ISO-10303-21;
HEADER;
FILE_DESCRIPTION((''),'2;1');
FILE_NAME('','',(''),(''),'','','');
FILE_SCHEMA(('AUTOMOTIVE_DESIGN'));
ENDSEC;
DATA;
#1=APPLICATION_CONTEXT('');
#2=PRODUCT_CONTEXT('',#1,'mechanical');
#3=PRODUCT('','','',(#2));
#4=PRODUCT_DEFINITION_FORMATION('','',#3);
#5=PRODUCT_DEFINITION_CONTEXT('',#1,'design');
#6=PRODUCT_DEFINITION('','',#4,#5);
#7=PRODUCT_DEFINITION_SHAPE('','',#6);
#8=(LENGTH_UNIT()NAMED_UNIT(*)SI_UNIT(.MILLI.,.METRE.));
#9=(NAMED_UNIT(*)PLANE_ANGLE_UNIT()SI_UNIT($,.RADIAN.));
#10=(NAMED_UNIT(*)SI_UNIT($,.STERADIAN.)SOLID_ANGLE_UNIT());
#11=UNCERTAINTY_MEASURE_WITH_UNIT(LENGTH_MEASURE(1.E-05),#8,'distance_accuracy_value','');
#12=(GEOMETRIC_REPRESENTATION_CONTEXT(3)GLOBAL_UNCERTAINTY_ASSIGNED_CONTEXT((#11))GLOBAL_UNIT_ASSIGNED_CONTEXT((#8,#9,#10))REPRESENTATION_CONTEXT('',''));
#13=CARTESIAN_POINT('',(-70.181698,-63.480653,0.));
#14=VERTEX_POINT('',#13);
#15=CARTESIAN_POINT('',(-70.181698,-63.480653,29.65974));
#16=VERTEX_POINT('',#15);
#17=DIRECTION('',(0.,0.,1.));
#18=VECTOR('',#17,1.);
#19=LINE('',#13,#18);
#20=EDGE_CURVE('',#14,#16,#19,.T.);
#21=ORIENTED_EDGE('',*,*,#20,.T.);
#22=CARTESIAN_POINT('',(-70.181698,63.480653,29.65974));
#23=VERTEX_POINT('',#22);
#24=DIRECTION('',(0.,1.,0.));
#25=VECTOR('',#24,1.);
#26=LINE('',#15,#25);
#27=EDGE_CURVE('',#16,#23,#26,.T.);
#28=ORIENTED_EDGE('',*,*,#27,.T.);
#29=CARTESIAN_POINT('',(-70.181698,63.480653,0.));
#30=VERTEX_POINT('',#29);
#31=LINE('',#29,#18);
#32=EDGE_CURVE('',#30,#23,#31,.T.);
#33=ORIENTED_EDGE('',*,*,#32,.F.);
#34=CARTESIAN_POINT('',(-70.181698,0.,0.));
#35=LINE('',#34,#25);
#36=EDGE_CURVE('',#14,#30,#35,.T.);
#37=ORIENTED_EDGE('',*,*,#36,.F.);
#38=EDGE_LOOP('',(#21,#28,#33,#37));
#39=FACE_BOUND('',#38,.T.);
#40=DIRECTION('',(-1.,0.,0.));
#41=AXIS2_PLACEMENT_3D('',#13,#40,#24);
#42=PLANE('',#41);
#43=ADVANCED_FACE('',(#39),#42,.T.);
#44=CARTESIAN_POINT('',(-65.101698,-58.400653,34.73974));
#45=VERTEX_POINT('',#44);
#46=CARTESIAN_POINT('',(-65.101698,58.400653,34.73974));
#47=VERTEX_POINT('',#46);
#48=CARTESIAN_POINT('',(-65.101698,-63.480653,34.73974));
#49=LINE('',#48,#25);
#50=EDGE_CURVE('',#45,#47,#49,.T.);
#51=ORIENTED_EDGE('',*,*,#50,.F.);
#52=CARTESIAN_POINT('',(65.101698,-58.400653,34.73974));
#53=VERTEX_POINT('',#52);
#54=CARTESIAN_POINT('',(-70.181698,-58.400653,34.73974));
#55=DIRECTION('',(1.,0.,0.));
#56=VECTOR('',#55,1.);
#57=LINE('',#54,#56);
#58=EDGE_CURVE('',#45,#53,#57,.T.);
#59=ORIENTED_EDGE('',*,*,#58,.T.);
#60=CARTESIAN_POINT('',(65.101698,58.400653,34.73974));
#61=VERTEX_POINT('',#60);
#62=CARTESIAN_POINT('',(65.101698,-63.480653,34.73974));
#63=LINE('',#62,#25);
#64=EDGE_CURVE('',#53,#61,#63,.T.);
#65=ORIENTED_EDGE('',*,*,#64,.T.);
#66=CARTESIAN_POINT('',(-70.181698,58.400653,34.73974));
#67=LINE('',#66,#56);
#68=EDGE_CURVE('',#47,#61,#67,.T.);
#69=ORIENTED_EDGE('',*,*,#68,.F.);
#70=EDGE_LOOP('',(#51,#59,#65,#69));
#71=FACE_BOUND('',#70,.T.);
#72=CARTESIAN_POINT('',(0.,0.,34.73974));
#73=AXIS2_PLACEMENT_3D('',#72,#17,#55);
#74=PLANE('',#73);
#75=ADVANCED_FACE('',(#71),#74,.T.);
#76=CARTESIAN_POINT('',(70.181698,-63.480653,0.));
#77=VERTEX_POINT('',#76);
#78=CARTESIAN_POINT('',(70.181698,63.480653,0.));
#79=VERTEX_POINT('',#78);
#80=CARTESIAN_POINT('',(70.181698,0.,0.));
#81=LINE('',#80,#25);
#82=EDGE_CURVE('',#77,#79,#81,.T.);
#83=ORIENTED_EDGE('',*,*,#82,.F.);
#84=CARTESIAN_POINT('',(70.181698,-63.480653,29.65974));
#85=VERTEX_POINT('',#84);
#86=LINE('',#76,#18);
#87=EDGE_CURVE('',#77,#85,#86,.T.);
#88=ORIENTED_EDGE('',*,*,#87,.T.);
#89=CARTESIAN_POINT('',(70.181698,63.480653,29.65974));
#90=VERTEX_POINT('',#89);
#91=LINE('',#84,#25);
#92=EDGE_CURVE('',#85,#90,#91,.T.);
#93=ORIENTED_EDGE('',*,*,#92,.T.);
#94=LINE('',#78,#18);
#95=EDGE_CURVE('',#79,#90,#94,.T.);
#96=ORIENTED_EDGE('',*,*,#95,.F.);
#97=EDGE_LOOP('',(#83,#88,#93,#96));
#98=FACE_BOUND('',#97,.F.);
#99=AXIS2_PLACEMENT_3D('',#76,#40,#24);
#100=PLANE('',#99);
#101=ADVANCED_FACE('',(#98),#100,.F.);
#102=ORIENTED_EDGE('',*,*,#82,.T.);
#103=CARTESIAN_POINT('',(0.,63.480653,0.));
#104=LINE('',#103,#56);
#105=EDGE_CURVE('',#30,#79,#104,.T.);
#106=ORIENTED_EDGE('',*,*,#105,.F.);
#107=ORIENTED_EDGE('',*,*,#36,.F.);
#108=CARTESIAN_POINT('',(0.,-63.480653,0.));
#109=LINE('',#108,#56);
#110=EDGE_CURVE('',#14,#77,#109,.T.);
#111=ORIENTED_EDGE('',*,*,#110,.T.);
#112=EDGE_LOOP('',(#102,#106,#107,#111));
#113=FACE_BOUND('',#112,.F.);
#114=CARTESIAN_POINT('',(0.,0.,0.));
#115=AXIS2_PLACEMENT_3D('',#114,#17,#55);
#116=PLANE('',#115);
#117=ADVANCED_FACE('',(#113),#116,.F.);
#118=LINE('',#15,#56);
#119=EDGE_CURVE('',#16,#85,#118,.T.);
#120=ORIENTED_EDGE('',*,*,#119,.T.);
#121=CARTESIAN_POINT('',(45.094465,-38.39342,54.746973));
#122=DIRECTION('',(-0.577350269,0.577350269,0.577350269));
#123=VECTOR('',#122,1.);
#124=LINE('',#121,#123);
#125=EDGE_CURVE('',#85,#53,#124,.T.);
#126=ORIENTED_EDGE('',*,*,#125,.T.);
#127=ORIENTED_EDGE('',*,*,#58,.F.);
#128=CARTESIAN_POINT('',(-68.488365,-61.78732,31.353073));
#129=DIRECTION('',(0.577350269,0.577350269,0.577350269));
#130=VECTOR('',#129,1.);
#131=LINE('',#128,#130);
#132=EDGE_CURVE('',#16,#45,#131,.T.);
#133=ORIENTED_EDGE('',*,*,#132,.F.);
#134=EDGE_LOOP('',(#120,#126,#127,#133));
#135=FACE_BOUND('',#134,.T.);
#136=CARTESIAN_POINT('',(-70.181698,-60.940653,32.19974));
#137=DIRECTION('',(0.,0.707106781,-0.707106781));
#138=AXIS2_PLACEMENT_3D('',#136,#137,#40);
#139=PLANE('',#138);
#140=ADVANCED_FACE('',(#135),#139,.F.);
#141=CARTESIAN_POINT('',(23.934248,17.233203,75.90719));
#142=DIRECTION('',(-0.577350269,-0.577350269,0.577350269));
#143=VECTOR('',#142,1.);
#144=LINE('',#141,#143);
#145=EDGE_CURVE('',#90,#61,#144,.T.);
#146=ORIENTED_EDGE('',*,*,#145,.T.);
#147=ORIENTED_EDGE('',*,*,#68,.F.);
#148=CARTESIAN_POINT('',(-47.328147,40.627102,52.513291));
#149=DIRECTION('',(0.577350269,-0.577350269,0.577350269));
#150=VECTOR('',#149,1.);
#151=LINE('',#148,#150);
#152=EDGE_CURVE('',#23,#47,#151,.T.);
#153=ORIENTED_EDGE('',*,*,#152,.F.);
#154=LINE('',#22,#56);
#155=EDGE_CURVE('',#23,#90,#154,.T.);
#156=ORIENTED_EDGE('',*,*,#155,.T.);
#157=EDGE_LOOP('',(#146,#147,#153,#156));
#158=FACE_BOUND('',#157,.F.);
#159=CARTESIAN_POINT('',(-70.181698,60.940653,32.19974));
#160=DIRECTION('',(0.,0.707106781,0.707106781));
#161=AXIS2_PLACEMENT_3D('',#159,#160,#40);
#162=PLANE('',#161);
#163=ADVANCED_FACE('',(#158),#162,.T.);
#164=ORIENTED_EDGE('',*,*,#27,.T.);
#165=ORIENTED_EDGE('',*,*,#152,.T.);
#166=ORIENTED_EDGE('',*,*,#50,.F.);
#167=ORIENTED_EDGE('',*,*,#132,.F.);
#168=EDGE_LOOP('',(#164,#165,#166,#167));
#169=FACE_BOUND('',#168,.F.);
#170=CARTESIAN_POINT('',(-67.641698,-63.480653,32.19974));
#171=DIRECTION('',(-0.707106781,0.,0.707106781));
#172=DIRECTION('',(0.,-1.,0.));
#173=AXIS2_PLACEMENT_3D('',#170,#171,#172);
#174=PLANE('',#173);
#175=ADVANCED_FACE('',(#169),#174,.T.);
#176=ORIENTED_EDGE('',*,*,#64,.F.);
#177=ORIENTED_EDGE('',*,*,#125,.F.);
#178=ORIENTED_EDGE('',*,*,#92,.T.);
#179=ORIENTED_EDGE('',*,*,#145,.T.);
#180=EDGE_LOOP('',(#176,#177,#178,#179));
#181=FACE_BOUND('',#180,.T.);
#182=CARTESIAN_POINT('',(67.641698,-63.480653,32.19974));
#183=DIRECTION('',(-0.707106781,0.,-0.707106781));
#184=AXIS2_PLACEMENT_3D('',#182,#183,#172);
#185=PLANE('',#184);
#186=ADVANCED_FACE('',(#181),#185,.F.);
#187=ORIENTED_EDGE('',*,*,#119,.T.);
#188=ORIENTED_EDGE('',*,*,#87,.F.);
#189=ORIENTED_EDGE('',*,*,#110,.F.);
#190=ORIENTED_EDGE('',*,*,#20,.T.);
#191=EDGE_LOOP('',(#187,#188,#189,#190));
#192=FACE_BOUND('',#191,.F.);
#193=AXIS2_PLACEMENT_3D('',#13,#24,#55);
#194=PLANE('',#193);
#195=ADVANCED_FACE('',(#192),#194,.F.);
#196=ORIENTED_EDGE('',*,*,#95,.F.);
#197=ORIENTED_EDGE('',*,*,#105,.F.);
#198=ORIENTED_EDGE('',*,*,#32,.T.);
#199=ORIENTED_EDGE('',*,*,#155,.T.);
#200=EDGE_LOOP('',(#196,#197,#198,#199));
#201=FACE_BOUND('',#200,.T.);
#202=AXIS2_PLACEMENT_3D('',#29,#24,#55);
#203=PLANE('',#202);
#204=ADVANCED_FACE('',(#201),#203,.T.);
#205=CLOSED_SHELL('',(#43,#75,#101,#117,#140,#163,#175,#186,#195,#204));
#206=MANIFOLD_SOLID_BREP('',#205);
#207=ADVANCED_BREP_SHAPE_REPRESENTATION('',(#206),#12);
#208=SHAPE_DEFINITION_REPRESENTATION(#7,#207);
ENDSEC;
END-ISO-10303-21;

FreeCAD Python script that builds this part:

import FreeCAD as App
import Part
import Sketcher
from FreeCAD import Vector
Q = App.Units.Quantity


def edges_at(feature, points):
    """Names of the edges that pass closest to the given points."""
    edges = feature.Shape.Edges
    near = lambda p: min(range(len(edges)), key=lambda i: edges[i].distToShape(Part.Vertex(*p))[0])
    return sorted({f"Edge{near(p) + 1}" for p in points})

doc = App.newDocument("Part")
params = doc.addObject("Spreadsheet::Sheet", "Params")
for row, (alias, value) in enumerate([
    ("pad1_length", "34.73974 mm"),
    ("chamfer_size", "0.2 in"),
], start=1):
    params.set(f"A{row}", alias)
    params.set(f"B{row}", "=" + value)
    params.setAlias(f"B{row}", alias)

body = doc.addObject("PartDesign::Body", "Body")

sketch1 = body.newObject("Sketcher::SketchObject", "Sketch")
sketch1.AttachmentSupport = (doc.getObject("XY_Plane"), [""])
sketch1.MapMode = "FlatFace"
sketch1.addGeometry([
    Part.LineSegment(Vector(-70, 63, 0), Vector(-70, -63, 0)),
    Part.LineSegment(Vector(-70, -63, 0), Vector(70, -63, 0)),
    Part.LineSegment(Vector(70, -63, 0), Vector(70, 63, 0)),
    Part.LineSegment(Vector(70, 63, 0), Vector(-70, 63, 0)),
], False)
sketch1.addConstraint([
    Sketcher.Constraint("Coincident", 0, 2, 1, 1),
    Sketcher.Constraint("Coincident", 1, 2, 2, 1),
    Sketcher.Constraint("Coincident", 2, 2, 3, 1),
    Sketcher.Constraint("Coincident", 3, 2, 0, 1),
    Sketcher.Constraint("Vertical", 0),
    Sketcher.Constraint("Horizontal", 1),
    Sketcher.Constraint("Vertical", 2),
    Sketcher.Constraint("Horizontal", 3),
    Sketcher.Constraint("Symmetric", 0, 2, 2, 2, -1, 1),
    Sketcher.Constraint("DistanceX", 1, 1, 1, 2, Q("140.363396 mm")),
    Sketcher.Constraint("DistanceY", 0, 2, 0, 1, Q("126.961306 mm")),
])
pad1 = body.newObject("PartDesign::Pad", "Pad")
pad1.Profile = sketch1
pad1.setExpression("Length", "Params.pad1_length")
doc.recompute()

chamfer = body.newObject("PartDesign::Chamfer", "Chamfer")
chamfer.Base = (pad1, edges_at(pad1, [
    (0, -63.481, 34.74),
    (-70.182, 0, 34.74),
    (0, 63.481, 34.74),
    (70.182, 0, 34.74),
]))
chamfer.setExpression("Size", "Params.chamfer_size")

doc.recompute()
